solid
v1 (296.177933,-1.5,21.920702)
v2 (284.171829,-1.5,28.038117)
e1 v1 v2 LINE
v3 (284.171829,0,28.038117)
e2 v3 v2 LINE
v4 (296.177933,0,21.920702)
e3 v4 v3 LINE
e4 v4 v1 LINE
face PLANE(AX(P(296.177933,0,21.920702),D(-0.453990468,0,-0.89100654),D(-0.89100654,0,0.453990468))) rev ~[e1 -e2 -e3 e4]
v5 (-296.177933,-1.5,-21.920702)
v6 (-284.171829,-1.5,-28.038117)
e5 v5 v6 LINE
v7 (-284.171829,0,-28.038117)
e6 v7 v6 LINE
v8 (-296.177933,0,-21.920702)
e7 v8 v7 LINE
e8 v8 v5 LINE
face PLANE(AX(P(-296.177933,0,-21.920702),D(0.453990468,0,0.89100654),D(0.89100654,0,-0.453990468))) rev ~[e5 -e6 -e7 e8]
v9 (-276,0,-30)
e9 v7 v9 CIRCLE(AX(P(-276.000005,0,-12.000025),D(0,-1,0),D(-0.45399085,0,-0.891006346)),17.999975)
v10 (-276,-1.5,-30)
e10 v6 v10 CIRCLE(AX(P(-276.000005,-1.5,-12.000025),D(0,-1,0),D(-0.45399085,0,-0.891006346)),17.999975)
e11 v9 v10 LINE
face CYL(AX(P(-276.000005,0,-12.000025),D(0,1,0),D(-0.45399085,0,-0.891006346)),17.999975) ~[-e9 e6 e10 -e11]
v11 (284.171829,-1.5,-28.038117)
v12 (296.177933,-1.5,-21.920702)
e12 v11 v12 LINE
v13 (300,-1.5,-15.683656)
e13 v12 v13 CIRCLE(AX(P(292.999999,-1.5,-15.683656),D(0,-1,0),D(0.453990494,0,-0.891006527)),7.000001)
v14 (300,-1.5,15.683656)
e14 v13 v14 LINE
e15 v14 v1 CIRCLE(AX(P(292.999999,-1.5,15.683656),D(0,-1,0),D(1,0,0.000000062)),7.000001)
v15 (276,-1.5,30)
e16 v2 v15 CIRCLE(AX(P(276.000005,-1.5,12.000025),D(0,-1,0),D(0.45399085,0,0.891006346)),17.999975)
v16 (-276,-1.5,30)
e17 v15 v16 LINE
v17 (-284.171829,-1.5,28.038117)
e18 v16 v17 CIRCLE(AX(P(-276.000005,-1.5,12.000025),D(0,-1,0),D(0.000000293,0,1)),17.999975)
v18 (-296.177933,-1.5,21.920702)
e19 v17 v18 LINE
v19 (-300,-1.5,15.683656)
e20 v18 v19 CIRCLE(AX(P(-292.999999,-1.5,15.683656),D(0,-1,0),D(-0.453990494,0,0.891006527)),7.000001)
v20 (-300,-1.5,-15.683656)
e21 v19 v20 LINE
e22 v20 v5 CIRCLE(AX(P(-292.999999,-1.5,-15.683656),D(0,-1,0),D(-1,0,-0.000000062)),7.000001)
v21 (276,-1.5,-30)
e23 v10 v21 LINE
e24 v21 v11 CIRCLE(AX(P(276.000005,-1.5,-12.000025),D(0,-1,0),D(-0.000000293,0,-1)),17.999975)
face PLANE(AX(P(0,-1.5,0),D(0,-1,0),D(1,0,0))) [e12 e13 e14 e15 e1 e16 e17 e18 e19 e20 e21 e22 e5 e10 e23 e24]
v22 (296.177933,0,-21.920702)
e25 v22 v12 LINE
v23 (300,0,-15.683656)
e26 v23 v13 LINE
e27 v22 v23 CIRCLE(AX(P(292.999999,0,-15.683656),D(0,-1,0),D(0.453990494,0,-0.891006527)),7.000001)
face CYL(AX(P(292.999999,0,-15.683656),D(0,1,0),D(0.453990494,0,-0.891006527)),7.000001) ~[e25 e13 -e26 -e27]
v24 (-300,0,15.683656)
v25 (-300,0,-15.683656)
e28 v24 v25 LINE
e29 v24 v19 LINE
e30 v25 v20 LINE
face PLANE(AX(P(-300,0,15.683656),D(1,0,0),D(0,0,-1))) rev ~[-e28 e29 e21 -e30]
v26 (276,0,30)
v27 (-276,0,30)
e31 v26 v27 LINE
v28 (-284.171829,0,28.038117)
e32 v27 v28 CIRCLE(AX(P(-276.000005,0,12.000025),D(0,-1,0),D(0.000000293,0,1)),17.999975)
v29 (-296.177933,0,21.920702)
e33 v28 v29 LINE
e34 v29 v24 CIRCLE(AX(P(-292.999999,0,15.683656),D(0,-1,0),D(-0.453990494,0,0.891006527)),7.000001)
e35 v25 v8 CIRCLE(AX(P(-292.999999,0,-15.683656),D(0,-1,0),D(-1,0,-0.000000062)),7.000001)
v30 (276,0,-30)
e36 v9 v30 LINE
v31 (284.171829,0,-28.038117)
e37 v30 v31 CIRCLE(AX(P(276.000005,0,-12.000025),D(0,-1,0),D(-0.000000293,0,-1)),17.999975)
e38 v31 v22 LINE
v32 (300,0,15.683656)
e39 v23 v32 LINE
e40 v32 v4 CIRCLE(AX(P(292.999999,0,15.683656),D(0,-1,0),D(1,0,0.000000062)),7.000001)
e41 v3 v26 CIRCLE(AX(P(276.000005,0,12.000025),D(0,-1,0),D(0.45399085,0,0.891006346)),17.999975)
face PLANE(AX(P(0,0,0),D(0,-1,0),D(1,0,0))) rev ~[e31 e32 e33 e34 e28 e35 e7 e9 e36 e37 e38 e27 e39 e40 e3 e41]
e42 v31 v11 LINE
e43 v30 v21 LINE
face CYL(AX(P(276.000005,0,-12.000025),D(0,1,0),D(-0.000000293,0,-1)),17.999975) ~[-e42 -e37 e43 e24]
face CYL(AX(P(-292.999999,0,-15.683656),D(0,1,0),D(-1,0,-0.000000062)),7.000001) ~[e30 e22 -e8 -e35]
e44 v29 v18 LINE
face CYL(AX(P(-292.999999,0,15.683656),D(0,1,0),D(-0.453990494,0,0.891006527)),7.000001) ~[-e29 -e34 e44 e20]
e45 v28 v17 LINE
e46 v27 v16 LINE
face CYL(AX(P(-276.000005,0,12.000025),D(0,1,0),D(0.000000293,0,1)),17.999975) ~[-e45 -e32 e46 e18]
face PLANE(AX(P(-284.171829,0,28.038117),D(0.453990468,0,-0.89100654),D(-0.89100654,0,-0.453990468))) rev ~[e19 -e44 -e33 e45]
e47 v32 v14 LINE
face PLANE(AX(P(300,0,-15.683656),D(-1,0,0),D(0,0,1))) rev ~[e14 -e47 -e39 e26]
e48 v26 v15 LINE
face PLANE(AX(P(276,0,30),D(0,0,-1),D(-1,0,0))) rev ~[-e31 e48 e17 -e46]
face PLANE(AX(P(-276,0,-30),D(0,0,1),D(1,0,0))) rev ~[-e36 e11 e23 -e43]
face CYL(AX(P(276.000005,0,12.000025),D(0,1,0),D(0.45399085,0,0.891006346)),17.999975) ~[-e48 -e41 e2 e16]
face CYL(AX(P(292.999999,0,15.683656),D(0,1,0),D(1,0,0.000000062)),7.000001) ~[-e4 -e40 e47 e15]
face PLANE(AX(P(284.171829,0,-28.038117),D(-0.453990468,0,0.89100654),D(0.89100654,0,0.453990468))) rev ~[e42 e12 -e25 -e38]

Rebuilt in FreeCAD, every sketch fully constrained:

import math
import FreeCAD as App
import Part
import Sketcher

V = App.Vector
Q = App.Units.Quantity

doc = App.newDocument("Part")
body = doc.addObject("PartDesign::Body", "Body")

sketch1 = body.newObject("Sketcher::SketchObject", "Sketch")
sketch1.AttachmentSupport = (doc.getObject("XZ_Plane"), [""])
sketch1.MapMode = "FlatFace"
sketch1.addGeometry(Part.ArcOfCircle(Part.Circle(V(-276, 12, 0), V(0, 0, 1), 18), math.radians(90), math.radians(117)), False)
sketch1.addGeometry(Part.LineSegment(V(-284, 28, 0), V(-296, 22, 0)), False)
sketch1.addGeometry(Part.ArcOfCircle(Part.Circle(V(-293, 16, 0), V(0, 0, 1), 7), math.radians(117), math.radians(180)), False)
sketch1.addGeometry(Part.LineSegment(V(-300, 16, 0), V(-300, -16, 0)), False)
sketch1.addGeometry(Part.ArcOfCircle(Part.Circle(V(-293, -16, 0), V(0, 0, 1), 7), math.radians(-180), math.radians(-117)), False)
sketch1.addGeometry(Part.LineSegment(V(-296, -22, 0), V(-284, -28, 0)), False)
sketch1.addGeometry(Part.ArcOfCircle(Part.Circle(V(-276, -12, 0), V(0, 0, 1), 18), math.radians(-117), math.radians(-90)), False)
sketch1.addGeometry(Part.LineSegment(V(-276, -30, 0), V(276, -30, 0)), False)
sketch1.addGeometry(Part.ArcOfCircle(Part.Circle(V(276, -12, 0), V(0, 0, 1), 18), math.radians(-90), math.radians(-63)), False)
sketch1.addGeometry(Part.LineSegment(V(284, -28, 0), V(296, -22, 0)), False)
sketch1.addGeometry(Part.ArcOfCircle(Part.Circle(V(293, -16, 0), V(0, 0, 1), 7), math.radians(-63), math.radians(0)), False)
sketch1.addGeometry(Part.LineSegment(V(300, -16, 0), V(300, 16, 0)), False)
sketch1.addGeometry(Part.ArcOfCircle(Part.Circle(V(293, 16, 0), V(0, 0, 1), 7), math.radians(0), math.radians(63)), False)
sketch1.addGeometry(Part.LineSegment(V(296, 22, 0), V(284, 28, 0)), False)
sketch1.addGeometry(Part.ArcOfCircle(Part.Circle(V(276, 12, 0), V(0, 0, 1), 18), math.radians(63), math.radians(90)), False)
sketch1.addGeometry(Part.LineSegment(V(276, 30, 0), V(-276, 30, 0)), False)
sketch1.addConstraint(Sketcher.Constraint("Tangent", 0, 2, 1, 1))
sketch1.addConstraint(Sketcher.Constraint("Tangent", 1, 2, 2, 1))
sketch1.addConstraint(Sketcher.Constraint("Tangent", 2, 2, 3, 1))
sketch1.addConstraint(Sketcher.Constraint("Tangent", 3, 2, 4, 1))
sketch1.addConstraint(Sketcher.Constraint("Tangent", 4, 2, 5, 1))
sketch1.addConstraint(Sketcher.Constraint("Tangent", 5, 2, 6, 1))
sketch1.addConstraint(Sketcher.Constraint("Tangent", 6, 2, 7, 1))
sketch1.addConstraint(Sketcher.Constraint("Tangent", 7, 2, 8, 1))
sketch1.addConstraint(Sketcher.Constraint("Tangent", 8, 2, 9, 1))
sketch1.addConstraint(Sketcher.Constraint("Tangent", 9, 2, 10, 1))
sketch1.addConstraint(Sketcher.Constraint("Tangent", 10, 2, 11, 1))
sketch1.addConstraint(Sketcher.Constraint("Tangent", 11, 2, 12, 1))
sketch1.addConstraint(Sketcher.Constraint("Tangent", 12, 2, 13, 1))
sketch1.addConstraint(Sketcher.Constraint("Tangent", 13, 2, 14, 1))
sketch1.addConstraint(Sketcher.Constraint("Tangent", 14, 2, 15, 1))
sketch1.addConstraint(Sketcher.Constraint("Tangent", 15, 2, 0, 1))
sketch1.addConstraint(Sketcher.Constraint("Vertical", 3))
sketch1.addConstraint(Sketcher.Constraint("Horizontal", 7))
sketch1.addConstraint(Sketcher.Constraint("Vertical", 11))
sketch1.addConstraint(Sketcher.Constraint("Horizontal", 15))
sketch1.addConstraint(Sketcher.Constraint("Equal", 2, 4))
sketch1.addConstraint(Sketcher.Constraint("Equal", 0, 6))
sketch1.addConstraint(Sketcher.Constraint("Equal", 6, 8))
sketch1.addConstraint(Sketcher.Constraint("Equal", 4, 10))
sketch1.addConstraint(Sketcher.Constraint("Equal", 10, 12))
sketch1.addConstraint(Sketcher.Constraint("Equal", 8, 14))
sketch1.addConstraint(Sketcher.Constraint("Symmetric", 0, 3, 8, 3, -1, 1))
sketch1.addConstraint(Sketcher.Constraint("Symmetric", 2, 3, 10, 3, -1, 1))
sketch1.addConstraint(Sketcher.Constraint("Symmetric", 4, 2, 12, 2, -1, 1))
sketch1.addConstraint(Sketcher.Constraint("Symmetric", 5, 2, 8, 2, -2))
sketch1.addConstraint(Sketcher.Constraint("Radius", 2, Q("7.000001 mm")))
sketch1.addConstraint(Sketcher.Constraint("DistanceX", 7, 1, 7, 2, Q("552 mm")))
sketch1.addConstraint(Sketcher.Constraint("Angle", 1, Q("-153.000002 deg")))
sketch1.addConstraint(Sketcher.Constraint("DistanceX", 2, 3, -1, 1, Q("292.999999 mm")))
sketch1.addConstraint(Sketcher.Constraint("DistanceY", 6, 2, -1, 1, Q("30 mm")))
sketch1.addConstraint(Sketcher.Constraint("Radius", 0, Q("17.999975 mm")))
pad1 = body.newObject("PartDesign::Pad", "Pad")
pad1.Profile = sketch1
pad1.Length = 1.5

doc.recompute()
